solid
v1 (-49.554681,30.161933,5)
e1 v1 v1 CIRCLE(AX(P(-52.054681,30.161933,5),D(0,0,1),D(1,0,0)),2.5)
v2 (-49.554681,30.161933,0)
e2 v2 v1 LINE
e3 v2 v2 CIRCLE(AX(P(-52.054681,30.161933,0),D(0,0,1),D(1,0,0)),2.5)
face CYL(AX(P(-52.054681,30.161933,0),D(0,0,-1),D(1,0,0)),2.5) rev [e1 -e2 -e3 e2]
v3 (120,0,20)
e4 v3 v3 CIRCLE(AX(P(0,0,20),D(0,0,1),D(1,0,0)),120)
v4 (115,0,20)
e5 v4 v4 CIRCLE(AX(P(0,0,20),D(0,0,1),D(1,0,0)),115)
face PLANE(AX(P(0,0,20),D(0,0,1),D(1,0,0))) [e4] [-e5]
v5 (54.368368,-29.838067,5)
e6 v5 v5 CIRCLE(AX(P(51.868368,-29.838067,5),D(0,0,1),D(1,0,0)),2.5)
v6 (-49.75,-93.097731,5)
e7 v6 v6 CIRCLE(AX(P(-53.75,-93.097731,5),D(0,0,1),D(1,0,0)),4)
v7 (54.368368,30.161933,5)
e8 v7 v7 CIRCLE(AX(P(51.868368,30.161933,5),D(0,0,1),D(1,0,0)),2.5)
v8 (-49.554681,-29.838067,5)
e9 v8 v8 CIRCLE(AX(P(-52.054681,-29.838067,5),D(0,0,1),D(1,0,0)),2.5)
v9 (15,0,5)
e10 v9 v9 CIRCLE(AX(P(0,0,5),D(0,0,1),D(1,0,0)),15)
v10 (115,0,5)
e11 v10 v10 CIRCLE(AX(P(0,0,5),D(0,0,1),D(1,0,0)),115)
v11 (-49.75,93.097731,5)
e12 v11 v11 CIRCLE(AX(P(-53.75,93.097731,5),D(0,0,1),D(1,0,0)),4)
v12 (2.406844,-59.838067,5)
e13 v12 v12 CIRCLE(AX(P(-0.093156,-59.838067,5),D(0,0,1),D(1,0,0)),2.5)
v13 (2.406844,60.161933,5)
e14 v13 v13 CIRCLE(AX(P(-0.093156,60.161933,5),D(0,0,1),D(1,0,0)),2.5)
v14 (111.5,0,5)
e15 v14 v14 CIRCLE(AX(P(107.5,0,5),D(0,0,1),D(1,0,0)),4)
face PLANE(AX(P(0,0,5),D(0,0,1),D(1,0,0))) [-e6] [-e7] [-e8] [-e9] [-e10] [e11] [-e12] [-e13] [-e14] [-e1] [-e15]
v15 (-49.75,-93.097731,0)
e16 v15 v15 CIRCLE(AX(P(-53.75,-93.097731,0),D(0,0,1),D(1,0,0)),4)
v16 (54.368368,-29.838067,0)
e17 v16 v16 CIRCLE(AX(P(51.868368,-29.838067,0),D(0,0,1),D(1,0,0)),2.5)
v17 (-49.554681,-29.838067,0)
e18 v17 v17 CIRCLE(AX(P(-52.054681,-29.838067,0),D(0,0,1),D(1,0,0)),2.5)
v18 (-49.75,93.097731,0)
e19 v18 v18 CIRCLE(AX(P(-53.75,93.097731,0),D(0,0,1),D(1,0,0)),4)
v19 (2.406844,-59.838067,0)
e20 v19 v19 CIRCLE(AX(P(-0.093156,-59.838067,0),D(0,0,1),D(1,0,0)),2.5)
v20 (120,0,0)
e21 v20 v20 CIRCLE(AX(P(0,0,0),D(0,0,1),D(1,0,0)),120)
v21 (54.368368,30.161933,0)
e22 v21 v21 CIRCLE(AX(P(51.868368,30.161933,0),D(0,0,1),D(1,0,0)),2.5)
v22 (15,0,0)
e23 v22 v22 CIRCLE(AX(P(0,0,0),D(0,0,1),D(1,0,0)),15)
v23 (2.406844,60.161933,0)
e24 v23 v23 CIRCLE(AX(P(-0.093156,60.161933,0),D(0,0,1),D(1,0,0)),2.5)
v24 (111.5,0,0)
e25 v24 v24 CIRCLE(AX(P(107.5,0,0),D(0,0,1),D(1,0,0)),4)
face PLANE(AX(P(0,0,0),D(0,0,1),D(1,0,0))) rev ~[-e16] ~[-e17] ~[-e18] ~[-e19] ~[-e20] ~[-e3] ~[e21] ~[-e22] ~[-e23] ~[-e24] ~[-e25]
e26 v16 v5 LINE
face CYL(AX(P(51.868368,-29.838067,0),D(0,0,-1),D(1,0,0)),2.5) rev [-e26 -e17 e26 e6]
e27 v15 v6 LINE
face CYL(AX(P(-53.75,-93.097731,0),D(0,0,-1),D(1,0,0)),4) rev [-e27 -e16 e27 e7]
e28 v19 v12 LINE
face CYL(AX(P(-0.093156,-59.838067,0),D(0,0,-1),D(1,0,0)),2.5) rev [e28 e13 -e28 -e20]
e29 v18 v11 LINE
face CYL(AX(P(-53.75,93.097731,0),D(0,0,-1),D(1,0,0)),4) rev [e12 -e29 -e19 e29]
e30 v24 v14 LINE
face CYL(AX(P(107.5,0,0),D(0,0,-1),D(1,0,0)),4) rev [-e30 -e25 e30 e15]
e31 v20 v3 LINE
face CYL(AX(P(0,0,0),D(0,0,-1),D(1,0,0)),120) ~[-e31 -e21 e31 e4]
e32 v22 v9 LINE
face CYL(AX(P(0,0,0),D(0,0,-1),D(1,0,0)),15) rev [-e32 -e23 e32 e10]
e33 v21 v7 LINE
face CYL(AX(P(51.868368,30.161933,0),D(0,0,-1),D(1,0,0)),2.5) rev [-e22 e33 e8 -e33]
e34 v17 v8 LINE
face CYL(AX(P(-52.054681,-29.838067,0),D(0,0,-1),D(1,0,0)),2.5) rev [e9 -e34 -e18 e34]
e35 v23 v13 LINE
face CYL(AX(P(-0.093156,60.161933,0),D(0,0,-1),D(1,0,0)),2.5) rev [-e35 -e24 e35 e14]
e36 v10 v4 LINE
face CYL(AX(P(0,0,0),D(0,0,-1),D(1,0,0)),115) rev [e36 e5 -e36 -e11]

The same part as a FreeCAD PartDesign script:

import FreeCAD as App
import Part
import Sketcher
from FreeCAD import Vector
Q = App.Units.Quantity

doc = App.newDocument("Part")
body = doc.addObject("PartDesign::Body", "Body")

# Sketch on XY plane
sketch1 = body.newObject("Sketcher::SketchObject", "Sketch")
sketch1.AttachmentSupport = (doc.getObject("XY_Plane"), [""])
sketch1.MapMode = "FlatFace"
sketch1.addGeometry([
    Part.Circle(Vector(0, 0, 0), Vector(0, 0, 1), 115),  # 0
    Part.Circle(Vector(-53.8, -93.1, 0), Vector(0, 0, 1), 4),  # 1
    Part.Circle(Vector(-0.1, -59.8, 0), Vector(0, 0, 1), 2.5),  # 2
    Part.Circle(Vector(-52.1, -29.8, 0), Vector(0, 0, 1), 2.5),  # 3
    Part.Circle(Vector(51.9, -29.8, 0), Vector(0, 0, 1), 2.5),  # 4
    Part.Circle(Vector(-52.1, 30.2, 0), Vector(0, 0, 1), 2.5),  # 5
    Part.Circle(Vector(0, 0, 0), Vector(0, 0, 1), 15),  # 6
    Part.Circle(Vector(-53.8, 93.1, 0), Vector(0, 0, 1), 4),  # 7
    Part.Circle(Vector(-0.1, 60.2, 0), Vector(0, 0, 1), 2.5),  # 8
    Part.Circle(Vector(51.9, 30.2, 0), Vector(0, 0, 1), 2.5),  # 9
    Part.Circle(Vector(107.5, 0, 0), Vector(0, 0, 1), 4),  # 10
], False)
sketch1.addConstraint([
    Sketcher.Constraint("Coincident", 0, 3, -1, 1),
    Sketcher.Constraint("Coincident", 6, 3, -1, 1),
    Sketcher.Constraint("Equal", 2, 3),
    Sketcher.Constraint("Equal", 3, 4),
    Sketcher.Constraint("Equal", 4, 5),
    Sketcher.Constraint("Equal", 1, 7),
    Sketcher.Constraint("Equal", 5, 8),
    Sketcher.Constraint("Equal", 8, 9),
    Sketcher.Constraint("Equal", 7, 10),
    Sketcher.Constraint("Symmetric", 1, 3, 7, 3, -1),
    Sketcher.Constraint("PointOnObject", 10, 3, -1),
    Sketcher.Constraint("Horizontal", 3, 3, 4, 3),
    Sketcher.Constraint("Horizontal", 5, 3, 9, 3),
    Sketcher.Constraint("Vertical", 3, 3, 5, 3),
    Sketcher.Constraint("Vertical", 2, 3, 8, 3),
    Sketcher.Constraint("Vertical", 4, 3, 9, 3),
    Sketcher.Constraint("Diameter", 0, Q("230 mm")),
    Sketcher.Constraint("Diameter", 1, Q("8 mm")),
    Sketcher.Constraint("Diameter", 2, Q("5 mm")),
    Sketcher.Constraint("Diameter", 6, Q("30 mm")),
    Sketcher.Constraint("DistanceY", 2, 3, 3, 3, Q("30 mm")),
    Sketcher.Constraint("DistanceY", 3, 3, 5, 3, Q("60 mm")),
    Sketcher.Constraint("DistanceY", 5, 3, 8, 3, Q("30 mm")),
    Sketcher.Constraint("DistanceX", -1, 1, 10, 3, Q("107.5 mm")),
    Sketcher.Constraint("DistanceX", 1, 3, -1, 1, Q("53.75 mm")),
    Sketcher.Constraint("DistanceY", 2, 3, 7, 3, Q("152.935798 mm")),
    Sketcher.Constraint("DistanceY", 1, 3, -1, 1, Q("93.097731 mm")),
    Sketcher.Constraint("DistanceX", 3, 3, -1, 1, Q("52.054681 mm")),
    Sketcher.Constraint("DistanceX", 3, 3, 4, 3, Q("103.923049 mm")),
    Sketcher.Constraint("DistanceX", 2, 3, -1, 1, Q("0.093156 mm")),
])
pad1 = body.newObject("PartDesign::Pad", "Pad")
pad1.Profile = sketch1
pad1.Length = 5

# Sketch on XY plane
sketch2 = body.newObject("Sketcher::SketchObject", "Sketch001")
sketch2.AttachmentSupport = (doc.getObject("XY_Plane"), [""])
sketch2.MapMode = "FlatFace"
sketch2.addGeometry([
    Part.Circle(Vector(0, 0, 0), Vector(0, 0, 1), 120),
    Part.Circle(Vector(0, 0, 0), Vector(0, 0, 1), 115),
], False)
sketch2.addConstraint([
    Sketcher.Constraint("Coincident", 0, 3, -1, 1),
    Sketcher.Constraint("Coincident", 1, 3, -1, 1),
    Sketcher.Constraint("Diameter", 0, Q("240 mm")),
    Sketcher.Constraint("Diameter", 1, Q("230 mm")),
])
pad2 = body.newObject("PartDesign::Pad", "Pad001")
pad2.Profile = sketch2
pad2.Length = 20

doc.recompute()
